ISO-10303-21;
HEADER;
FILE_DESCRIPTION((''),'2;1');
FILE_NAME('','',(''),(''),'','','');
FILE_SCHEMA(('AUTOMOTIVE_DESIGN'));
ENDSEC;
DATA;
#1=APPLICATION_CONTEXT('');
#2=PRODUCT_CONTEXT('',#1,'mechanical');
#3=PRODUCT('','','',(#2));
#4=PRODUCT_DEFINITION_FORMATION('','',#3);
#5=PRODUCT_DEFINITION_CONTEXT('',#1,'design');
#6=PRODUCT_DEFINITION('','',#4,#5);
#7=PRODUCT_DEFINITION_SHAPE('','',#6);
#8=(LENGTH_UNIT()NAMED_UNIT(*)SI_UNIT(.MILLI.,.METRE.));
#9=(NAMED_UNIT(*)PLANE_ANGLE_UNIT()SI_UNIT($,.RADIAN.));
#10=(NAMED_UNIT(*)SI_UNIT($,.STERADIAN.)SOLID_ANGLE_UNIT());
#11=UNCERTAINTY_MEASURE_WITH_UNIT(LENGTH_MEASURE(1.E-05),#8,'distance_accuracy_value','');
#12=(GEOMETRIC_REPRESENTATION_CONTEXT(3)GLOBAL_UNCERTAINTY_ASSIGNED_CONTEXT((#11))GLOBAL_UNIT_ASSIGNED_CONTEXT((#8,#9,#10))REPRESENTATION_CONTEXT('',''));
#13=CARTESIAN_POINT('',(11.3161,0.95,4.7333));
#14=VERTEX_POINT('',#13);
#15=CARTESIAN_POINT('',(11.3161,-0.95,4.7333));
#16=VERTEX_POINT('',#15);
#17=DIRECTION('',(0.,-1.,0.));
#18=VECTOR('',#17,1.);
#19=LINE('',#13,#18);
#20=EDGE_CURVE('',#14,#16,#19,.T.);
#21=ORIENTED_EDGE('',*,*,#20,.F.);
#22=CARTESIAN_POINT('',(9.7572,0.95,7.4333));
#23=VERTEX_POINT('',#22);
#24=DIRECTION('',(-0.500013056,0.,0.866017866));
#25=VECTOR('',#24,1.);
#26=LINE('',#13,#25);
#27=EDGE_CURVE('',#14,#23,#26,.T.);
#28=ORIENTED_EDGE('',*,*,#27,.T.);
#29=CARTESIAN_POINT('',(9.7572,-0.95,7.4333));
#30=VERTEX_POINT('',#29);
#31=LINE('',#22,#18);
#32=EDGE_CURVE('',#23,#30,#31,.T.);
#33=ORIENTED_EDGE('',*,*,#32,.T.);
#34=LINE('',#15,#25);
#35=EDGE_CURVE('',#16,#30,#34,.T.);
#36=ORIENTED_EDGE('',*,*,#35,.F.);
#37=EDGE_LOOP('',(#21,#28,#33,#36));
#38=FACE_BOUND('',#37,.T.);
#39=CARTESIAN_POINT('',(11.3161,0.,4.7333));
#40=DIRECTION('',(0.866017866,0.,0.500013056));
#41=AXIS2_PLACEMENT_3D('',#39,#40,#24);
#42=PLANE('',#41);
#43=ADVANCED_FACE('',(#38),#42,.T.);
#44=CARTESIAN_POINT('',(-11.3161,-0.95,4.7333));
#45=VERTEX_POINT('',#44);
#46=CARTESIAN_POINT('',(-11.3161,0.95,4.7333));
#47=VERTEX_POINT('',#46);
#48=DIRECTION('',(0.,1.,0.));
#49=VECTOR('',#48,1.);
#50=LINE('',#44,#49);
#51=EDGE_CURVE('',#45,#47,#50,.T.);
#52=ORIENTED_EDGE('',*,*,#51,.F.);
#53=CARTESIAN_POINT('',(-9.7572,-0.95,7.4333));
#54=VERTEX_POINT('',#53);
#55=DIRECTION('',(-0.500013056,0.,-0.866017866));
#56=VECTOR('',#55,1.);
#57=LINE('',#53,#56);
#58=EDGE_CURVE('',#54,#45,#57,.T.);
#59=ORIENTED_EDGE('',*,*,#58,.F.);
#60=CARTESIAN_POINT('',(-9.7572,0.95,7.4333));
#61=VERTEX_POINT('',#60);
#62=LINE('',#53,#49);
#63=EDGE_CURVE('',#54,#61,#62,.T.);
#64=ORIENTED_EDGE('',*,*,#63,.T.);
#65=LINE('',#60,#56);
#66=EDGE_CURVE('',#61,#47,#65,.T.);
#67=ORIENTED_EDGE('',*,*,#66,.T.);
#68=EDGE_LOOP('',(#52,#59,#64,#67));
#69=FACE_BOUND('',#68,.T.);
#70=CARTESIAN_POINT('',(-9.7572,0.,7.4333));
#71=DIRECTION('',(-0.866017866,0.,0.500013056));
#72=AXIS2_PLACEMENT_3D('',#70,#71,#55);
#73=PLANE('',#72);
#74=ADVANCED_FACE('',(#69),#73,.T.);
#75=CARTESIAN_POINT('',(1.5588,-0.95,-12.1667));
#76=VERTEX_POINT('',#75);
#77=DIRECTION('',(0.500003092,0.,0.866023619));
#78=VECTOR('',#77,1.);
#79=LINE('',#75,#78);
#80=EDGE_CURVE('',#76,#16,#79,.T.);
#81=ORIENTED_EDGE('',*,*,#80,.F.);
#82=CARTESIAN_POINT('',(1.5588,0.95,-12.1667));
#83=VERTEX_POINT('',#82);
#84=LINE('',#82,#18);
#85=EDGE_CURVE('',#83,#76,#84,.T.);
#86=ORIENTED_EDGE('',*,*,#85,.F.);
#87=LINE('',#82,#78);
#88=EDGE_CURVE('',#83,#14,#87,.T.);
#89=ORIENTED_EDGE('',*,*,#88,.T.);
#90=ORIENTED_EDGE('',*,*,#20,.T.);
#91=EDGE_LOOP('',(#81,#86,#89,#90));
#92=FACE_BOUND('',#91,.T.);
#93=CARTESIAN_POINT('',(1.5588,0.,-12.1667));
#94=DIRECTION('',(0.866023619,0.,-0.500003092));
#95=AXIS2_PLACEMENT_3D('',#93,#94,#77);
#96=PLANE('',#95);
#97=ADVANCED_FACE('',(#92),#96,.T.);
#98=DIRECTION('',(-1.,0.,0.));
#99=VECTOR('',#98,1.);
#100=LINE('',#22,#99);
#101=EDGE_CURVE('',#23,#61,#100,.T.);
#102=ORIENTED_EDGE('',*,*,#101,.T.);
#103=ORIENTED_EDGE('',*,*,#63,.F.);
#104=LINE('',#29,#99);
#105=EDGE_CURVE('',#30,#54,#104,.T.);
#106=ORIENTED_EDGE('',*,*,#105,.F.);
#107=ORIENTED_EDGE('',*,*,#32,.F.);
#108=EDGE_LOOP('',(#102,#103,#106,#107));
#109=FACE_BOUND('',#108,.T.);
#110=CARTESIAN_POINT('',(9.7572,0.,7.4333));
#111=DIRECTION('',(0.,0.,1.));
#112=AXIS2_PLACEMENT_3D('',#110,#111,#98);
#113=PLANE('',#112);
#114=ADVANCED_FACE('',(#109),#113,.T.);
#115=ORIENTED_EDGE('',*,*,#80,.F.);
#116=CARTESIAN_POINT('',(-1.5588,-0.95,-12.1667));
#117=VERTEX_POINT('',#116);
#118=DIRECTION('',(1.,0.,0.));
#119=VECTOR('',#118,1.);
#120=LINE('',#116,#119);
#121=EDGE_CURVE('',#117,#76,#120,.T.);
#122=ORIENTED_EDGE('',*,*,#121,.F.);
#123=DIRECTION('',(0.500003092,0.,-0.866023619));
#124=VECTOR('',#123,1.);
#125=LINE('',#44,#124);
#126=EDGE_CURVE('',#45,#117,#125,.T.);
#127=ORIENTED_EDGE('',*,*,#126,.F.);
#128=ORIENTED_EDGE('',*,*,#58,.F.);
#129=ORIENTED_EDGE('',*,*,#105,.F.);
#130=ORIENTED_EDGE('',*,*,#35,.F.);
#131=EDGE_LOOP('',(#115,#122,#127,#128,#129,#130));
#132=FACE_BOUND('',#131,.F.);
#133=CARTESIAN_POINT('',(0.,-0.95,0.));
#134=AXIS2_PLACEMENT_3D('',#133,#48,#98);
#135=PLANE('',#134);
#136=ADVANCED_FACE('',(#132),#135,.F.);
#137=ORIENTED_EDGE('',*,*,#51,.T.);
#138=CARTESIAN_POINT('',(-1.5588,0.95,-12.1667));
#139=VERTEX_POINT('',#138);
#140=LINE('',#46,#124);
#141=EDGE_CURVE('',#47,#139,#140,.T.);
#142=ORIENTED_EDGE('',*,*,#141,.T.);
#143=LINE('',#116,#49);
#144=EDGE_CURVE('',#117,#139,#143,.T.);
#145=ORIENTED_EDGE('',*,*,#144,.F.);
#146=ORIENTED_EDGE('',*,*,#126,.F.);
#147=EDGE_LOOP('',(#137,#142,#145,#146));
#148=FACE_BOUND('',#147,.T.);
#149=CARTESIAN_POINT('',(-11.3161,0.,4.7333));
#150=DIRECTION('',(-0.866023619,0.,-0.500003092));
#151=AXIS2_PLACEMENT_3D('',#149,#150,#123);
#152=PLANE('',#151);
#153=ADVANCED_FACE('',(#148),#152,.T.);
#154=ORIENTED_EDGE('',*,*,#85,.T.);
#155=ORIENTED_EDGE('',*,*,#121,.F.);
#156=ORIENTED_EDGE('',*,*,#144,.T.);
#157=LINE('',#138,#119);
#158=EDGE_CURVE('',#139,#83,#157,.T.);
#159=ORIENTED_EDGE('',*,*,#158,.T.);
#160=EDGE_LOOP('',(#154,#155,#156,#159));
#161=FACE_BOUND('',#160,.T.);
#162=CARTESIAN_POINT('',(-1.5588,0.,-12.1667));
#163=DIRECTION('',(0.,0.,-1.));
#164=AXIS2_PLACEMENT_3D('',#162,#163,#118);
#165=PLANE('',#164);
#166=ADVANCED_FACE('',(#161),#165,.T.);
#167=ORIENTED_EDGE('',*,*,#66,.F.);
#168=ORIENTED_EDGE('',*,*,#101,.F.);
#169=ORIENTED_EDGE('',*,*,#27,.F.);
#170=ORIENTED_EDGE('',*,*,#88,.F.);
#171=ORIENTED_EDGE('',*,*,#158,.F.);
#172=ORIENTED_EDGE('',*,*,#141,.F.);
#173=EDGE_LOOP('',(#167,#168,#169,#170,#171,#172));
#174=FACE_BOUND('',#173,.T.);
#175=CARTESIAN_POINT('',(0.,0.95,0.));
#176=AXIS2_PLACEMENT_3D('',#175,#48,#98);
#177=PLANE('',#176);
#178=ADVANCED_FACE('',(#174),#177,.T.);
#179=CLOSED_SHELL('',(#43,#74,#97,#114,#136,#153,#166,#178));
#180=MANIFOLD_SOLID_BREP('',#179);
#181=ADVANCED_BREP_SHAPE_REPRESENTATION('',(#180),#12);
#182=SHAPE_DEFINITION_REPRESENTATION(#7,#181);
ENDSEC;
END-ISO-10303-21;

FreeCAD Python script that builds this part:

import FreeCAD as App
import Part
import Sketcher
Q = App.Units.Quantity

doc = App.newDocument("Part")
body = doc.addObject("PartDesign::Body", "Body")

# Sketch on XZ plane
sketch1 = doc.addObject("Sketcher::SketchObject", "Sketch")
body.addObject(sketch1)
sketch1.AttachmentSupport = (doc.XZ_Plane, [""])
sketch1.MapMode = "FlatFace"
sketch1.addGeometry(Part.LineSegment(App.Vector(1.6, -12.2, 0), App.Vector(-1.6, -12.2, 0)), False)
sketch1.addGeometry(Part.LineSegment(App.Vector(-1.6, -12.2, 0), App.Vector(-11.3, 4.7, 0)), False)
sketch1.addGeometry(Part.LineSegment(App.Vector(-11.3, 4.7, 0), App.Vector(-9.8, 7.4, 0)), False)
sketch1.addGeometry(Part.LineSegment(App.Vector(-9.8, 7.4, 0), App.Vector(9.8, 7.4, 0)), False)
sketch1.addGeometry(Part.LineSegment(App.Vector(9.8, 7.4, 0), App.Vector(11.3, 4.7, 0)), False)
sketch1.addGeometry(Part.LineSegment(App.Vector(11.3, 4.7, 0), App.Vector(1.6, -12.2, 0)), False)
sketch1.addConstraint(Sketcher.Constraint("Coincident", 0, 2, 1, 1))
sketch1.addConstraint(Sketcher.Constraint("Coincident", 1, 2, 2, 1))
sketch1.addConstraint(Sketcher.Constraint("Coincident", 2, 2, 3, 1))
sketch1.addConstraint(Sketcher.Constraint("Coincident", 3, 2, 4, 1))
sketch1.addConstraint(Sketcher.Constraint("Coincident", 4, 2, 5, 1))
sketch1.addConstraint(Sketcher.Constraint("Coincident", 5, 2, 0, 1))
sketch1.addConstraint(Sketcher.Constraint("Horizontal", 0))
sketch1.addConstraint(Sketcher.Constraint("Horizontal", 3))
sketch1.addConstraint(Sketcher.Constraint("Symmetric", 1, 2, 4, 2, -2))
sketch1.addConstraint(Sketcher.Constraint("Parallel", 1, 4))
sketch1.addConstraint(Sketcher.Constraint("Parallel", 2, 5))
sketch1.addConstraint(Sketcher.Constraint("Equal", 2, 4))
sketch1.addConstraint(Sketcher.Constraint("DistanceY", 0, 2, 2, 2, Q("19.6 mm")))
sketch1.addConstraint(Sketcher.Constraint("Angle", 1, Q("120.0002 deg")))
sketch1.addConstraint(Sketcher.Constraint("DistanceX", 0, 2, 0, 1, Q("3.1176 mm")))
sketch1.addConstraint(Sketcher.Constraint("Distance", 2, Q("3.1177 mm")))
sketch1.addConstraint(Sketcher.Constraint("DistanceY", 0, 2, -1, 1, Q("12.1667 mm")))
pad1 = doc.addObject("PartDesign::Pad", "Pad")
body.addObject(pad1)
pad1.Profile = sketch1
pad1.Length = 1.9
pad1.Midplane = True

doc.recompute()
